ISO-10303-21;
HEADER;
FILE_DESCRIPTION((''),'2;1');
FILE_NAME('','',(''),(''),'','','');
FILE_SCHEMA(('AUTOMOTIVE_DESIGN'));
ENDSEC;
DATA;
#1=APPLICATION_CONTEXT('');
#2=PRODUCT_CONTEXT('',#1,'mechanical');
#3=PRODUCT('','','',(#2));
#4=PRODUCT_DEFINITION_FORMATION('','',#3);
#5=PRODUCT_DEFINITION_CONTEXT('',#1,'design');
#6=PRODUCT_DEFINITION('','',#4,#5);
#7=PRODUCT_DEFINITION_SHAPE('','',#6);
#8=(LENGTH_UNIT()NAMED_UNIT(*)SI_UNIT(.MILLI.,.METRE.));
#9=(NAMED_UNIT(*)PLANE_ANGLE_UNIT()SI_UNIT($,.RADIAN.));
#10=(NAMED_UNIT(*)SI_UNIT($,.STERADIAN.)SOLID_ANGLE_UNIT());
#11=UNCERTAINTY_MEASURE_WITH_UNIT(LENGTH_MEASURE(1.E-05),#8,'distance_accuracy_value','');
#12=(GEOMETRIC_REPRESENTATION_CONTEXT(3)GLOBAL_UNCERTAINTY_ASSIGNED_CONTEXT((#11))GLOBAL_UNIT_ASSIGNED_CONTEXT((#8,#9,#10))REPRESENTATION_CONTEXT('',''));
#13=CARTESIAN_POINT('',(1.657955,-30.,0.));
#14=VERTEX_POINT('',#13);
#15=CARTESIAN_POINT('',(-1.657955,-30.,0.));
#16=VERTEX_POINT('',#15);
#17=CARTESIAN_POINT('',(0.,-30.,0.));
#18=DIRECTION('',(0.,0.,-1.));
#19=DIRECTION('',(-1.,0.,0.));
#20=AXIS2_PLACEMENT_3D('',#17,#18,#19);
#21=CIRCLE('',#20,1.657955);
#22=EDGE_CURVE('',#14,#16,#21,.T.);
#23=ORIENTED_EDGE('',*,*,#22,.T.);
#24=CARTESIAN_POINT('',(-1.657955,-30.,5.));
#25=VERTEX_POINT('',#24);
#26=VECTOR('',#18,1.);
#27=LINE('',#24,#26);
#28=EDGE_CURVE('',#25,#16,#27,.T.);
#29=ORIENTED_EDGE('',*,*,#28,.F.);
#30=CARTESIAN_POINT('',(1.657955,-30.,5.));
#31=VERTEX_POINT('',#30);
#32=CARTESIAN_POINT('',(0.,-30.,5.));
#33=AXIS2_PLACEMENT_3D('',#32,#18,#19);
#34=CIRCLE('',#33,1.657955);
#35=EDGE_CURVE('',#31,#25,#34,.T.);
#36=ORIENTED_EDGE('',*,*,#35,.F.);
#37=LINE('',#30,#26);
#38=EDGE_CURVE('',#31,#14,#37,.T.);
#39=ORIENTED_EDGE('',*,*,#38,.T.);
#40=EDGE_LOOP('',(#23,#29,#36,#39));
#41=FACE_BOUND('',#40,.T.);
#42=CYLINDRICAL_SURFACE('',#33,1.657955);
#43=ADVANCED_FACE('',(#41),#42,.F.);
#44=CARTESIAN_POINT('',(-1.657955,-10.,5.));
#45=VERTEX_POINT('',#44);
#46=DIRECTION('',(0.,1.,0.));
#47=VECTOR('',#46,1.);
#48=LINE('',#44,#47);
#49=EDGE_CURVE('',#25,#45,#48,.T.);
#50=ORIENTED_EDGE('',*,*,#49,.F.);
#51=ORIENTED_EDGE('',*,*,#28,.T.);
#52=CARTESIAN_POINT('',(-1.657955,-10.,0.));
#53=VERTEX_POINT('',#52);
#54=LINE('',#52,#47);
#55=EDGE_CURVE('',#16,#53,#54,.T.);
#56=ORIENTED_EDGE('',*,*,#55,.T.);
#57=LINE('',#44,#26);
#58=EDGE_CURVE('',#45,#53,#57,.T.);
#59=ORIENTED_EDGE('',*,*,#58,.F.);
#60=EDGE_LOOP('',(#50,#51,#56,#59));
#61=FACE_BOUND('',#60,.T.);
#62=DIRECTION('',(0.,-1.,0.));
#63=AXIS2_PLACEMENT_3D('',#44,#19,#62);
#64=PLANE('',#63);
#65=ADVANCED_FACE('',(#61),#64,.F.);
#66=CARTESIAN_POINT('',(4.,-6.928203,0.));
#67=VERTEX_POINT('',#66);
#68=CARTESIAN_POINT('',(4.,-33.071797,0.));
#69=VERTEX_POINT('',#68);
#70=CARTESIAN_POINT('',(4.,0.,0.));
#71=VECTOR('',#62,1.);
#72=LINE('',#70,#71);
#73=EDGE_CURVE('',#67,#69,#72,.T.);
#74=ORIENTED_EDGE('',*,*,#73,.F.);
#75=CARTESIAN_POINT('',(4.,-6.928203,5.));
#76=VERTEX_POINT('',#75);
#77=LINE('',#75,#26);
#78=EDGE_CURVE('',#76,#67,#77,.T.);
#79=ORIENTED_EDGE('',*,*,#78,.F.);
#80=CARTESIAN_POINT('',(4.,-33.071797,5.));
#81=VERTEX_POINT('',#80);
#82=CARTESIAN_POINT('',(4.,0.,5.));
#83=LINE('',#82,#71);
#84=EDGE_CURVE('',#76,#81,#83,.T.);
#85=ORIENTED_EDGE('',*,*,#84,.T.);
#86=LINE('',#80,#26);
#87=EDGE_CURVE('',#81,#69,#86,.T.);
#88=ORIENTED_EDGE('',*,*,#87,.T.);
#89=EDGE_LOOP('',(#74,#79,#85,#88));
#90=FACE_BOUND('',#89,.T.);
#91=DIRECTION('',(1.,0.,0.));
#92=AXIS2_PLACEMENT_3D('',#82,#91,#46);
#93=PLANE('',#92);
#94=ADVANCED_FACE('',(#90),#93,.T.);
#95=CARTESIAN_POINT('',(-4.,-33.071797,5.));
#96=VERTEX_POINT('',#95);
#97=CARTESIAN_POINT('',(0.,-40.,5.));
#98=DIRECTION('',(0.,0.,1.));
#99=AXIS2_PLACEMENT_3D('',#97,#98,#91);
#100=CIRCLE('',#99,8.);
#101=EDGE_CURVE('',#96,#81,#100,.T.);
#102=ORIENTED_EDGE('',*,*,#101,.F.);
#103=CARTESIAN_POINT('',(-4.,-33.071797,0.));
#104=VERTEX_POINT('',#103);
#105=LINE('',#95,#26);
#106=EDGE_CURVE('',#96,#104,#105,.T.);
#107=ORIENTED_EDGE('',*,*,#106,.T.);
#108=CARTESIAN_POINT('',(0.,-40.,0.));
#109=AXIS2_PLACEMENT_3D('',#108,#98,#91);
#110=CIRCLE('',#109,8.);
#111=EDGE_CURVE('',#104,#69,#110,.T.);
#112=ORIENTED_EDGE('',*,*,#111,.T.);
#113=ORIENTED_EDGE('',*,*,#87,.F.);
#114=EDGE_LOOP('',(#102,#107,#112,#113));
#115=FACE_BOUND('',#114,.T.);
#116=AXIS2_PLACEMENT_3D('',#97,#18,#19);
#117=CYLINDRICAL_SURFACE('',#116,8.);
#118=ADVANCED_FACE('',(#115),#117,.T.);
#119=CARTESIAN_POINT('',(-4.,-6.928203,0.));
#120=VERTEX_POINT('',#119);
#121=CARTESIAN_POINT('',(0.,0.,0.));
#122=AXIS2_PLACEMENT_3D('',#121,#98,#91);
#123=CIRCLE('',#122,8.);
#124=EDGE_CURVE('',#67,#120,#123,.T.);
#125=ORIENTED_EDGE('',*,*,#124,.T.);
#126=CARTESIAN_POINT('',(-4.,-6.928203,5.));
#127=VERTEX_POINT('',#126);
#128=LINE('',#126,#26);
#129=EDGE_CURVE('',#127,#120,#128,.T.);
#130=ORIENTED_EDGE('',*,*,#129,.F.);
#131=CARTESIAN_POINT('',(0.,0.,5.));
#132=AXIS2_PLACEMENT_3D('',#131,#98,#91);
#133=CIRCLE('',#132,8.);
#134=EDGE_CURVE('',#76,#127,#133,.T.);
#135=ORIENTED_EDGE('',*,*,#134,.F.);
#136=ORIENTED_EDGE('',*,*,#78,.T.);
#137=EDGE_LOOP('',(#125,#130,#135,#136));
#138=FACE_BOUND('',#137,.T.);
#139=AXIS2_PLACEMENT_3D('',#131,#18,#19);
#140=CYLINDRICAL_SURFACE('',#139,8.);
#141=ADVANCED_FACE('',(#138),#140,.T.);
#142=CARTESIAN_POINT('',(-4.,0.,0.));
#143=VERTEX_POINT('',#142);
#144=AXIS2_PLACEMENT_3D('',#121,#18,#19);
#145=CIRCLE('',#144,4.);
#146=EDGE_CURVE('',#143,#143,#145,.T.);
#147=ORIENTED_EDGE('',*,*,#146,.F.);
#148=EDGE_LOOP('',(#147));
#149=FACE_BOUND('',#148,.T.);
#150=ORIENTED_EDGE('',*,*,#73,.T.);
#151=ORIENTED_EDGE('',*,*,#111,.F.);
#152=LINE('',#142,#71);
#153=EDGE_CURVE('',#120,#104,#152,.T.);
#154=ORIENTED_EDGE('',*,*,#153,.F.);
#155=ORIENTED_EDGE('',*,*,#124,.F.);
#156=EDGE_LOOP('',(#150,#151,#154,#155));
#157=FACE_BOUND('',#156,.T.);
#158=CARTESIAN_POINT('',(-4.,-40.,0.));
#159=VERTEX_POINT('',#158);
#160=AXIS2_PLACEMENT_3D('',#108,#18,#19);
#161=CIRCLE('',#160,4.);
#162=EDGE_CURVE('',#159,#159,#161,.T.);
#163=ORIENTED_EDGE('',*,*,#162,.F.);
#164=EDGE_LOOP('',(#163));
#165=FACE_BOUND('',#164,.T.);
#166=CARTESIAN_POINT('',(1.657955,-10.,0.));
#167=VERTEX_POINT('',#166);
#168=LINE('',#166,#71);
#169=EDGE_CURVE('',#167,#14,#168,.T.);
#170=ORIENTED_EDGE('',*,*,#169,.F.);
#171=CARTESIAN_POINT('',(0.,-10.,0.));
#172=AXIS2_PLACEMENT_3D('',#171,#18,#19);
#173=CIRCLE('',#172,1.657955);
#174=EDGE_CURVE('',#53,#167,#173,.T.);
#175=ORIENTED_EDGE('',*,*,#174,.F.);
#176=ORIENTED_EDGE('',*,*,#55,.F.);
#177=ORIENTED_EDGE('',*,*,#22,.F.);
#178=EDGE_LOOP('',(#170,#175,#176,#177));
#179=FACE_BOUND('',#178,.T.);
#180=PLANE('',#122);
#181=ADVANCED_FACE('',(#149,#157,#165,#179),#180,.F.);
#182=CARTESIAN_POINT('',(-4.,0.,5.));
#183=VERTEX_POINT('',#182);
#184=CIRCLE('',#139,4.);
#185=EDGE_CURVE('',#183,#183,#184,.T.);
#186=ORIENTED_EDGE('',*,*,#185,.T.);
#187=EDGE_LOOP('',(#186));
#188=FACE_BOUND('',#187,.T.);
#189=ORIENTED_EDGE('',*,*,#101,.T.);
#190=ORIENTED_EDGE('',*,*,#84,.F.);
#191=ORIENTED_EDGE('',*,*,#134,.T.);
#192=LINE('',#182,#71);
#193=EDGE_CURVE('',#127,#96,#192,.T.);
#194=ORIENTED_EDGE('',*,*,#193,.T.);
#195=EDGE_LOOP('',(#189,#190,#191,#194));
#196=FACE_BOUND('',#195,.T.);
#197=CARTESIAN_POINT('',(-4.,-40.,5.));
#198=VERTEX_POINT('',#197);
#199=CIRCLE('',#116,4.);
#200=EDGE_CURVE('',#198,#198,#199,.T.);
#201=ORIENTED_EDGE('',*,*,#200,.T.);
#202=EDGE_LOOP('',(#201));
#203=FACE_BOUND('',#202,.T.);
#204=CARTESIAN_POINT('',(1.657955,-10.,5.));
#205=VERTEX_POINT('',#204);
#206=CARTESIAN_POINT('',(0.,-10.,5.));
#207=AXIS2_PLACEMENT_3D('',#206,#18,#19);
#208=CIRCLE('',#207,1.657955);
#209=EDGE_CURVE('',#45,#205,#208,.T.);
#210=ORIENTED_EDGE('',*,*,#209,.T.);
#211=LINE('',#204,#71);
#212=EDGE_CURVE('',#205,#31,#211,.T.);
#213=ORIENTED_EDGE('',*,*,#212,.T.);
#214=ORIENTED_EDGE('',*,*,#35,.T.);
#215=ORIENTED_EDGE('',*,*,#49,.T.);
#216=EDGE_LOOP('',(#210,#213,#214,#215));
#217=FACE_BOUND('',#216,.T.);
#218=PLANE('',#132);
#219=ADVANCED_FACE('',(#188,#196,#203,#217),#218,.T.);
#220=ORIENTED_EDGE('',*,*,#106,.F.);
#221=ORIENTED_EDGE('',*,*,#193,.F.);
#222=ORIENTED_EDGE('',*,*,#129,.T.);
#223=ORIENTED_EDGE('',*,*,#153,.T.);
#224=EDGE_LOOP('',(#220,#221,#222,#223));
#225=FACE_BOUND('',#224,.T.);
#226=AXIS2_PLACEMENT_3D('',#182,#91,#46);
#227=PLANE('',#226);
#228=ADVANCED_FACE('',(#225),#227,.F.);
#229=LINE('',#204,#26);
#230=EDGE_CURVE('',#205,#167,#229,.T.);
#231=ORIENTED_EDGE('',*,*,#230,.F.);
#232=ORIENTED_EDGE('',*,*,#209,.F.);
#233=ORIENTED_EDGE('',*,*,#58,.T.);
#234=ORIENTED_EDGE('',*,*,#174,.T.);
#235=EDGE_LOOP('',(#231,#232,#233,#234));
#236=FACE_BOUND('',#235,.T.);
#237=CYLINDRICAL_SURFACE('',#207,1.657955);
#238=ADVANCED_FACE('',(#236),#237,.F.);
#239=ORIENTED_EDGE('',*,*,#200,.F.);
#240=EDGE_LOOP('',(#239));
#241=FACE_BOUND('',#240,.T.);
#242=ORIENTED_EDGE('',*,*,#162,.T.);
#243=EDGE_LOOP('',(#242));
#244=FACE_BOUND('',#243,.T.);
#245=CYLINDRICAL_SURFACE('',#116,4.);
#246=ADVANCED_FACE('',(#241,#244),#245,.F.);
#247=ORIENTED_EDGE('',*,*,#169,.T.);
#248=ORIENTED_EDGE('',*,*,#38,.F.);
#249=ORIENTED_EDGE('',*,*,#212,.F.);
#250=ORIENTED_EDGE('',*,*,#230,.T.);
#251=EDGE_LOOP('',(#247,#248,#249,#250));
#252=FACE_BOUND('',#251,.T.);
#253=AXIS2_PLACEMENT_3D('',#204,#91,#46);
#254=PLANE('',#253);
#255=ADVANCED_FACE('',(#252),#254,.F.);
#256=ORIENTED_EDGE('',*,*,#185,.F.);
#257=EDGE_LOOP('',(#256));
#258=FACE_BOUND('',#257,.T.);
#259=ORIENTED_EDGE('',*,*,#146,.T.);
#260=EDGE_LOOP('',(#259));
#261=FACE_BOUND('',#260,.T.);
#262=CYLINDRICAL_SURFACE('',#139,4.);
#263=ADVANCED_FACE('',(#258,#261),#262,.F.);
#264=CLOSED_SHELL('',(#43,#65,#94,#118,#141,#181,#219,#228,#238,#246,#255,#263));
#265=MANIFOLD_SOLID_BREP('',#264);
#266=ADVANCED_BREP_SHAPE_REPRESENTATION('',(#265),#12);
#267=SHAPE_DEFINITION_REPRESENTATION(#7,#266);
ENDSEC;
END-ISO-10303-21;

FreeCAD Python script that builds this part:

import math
import FreeCAD as App
import Part
import Sketcher
from FreeCAD import Vector
Q = App.Units.Quantity

doc = App.newDocument("Part")
params = doc.addObject("Spreadsheet::Sheet", "Params")
for row, (alias, value) in enumerate([
    ("sketch1_radius", "8 mm"),
    ("pad1_length", "5 mm"),
    ("sketch2_diameter", "8 mm"),
    ("sketch3_height", "20 mm"),
], start=1):
    params.set(f"A{row}", alias)
    params.set(f"B{row}", "=" + value)
    params.setAlias(f"B{row}", alias)

body = doc.addObject("PartDesign::Body", "Body")

# Sketch on XY plane
sketch1 = doc.addObject("Sketcher::SketchObject", "Sketch")
body.addObject(sketch1)
sketch1.AttachmentSupport = (doc.XY_Plane, [""])
sketch1.MapMode = "FlatFace"
sketch1.addGeometry(Part.LineSegment(Vector(-4, -7, 0), Vector(-4, -33, 0)), False)
sketch1.addGeometry(Part.ArcOfCircle(Part.Circle(Vector(0, -40, 0), Vector(0, 0, 1), 8), math.radians(120), math.radians(360)), False)
sketch1.addGeometry(Part.ArcOfCircle(Part.Circle(Vector(0, -40, 0), Vector(0, 0, 1), 8), math.radians(0), math.radians(60)), False)
sketch1.addGeometry(Part.LineSegment(Vector(4, -33, 0), Vector(4, -7, 0)), False)
sketch1.addGeometry(Part.ArcOfCircle(Part.Circle(Vector(0, 0, 0), Vector(0, 0, 1), 8), math.radians(-60), math.radians(0)), False)
sketch1.addGeometry(Part.ArcOfCircle(Part.Circle(Vector(0, 0, 0), Vector(0, 0, 1), 8), math.radians(0), math.radians(240)), False)
sketch1.addConstraint(Sketcher.Constraint("Coincident", 0, 2, 1, 1))
sketch1.addConstraint(Sketcher.Constraint("Tangent", 1, 2, 2, 1))
sketch1.addConstraint(Sketcher.Constraint("Coincident", 2, 2, 3, 1))
sketch1.addConstraint(Sketcher.Constraint("Coincident", 3, 2, 4, 1))
sketch1.addConstraint(Sketcher.Constraint("Tangent", 4, 2, 5, 1))
sketch1.addConstraint(Sketcher.Constraint("Coincident", 5, 2, 0, 1))
sketch1.addConstraint(Sketcher.Constraint("Vertical", 0))
sketch1.addConstraint(Sketcher.Constraint("Vertical", 3))
sketch1.addConstraint(Sketcher.Constraint("Coincident", 4, 3, -1, 1))
sketch1.addConstraint(Sketcher.Constraint("Equal", 1, 2))
sketch1.addConstraint(Sketcher.Constraint("Equal", 2, 4))
sketch1.addConstraint(Sketcher.Constraint("Equal", 4, 5))
sketch1.addConstraint(Sketcher.Constraint("Symmetric", 0, 2, 2, 2, -2))
sketch1.addConstraint(Sketcher.Constraint("PointOnObject", 4, 2, -1))
sketch1.addConstraint(Sketcher.Constraint("Horizontal", 2, 3, 1, 2))
sketch1.addConstraint(Sketcher.Constraint("Radius", 1, Q("8 mm")))
sketch1.addConstraint(Sketcher.Constraint("DistanceY", 1, 3, -1, 1, Q("40 mm")))
sketch1.addConstraint(Sketcher.Constraint("DistanceX", 0, 2, -1, 1, Q("4 mm")))
sketch1.setExpression("Constraints[15]", "Params.sketch1_radius")
pad1 = doc.addObject("PartDesign::Pad", "Pad")
body.addObject(pad1)
pad1.Profile = sketch1
pad1.setExpression("Length", "Params.pad1_length")

# Sketch on XY plane
sketch2 = doc.addObject("Sketcher::SketchObject", "Sketch001")
body.addObject(sketch2)
sketch2.AttachmentSupport = (doc.XY_Plane, [""])
sketch2.MapMode = "FlatFace"
sketch2.addGeometry(Part.Circle(Vector(0, 0, 0), Vector(0, 0, 1), 4), False)
sketch2.addGeometry(Part.Circle(Vector(0, -40, 0), Vector(0, 0, 1), 4), False)
sketch2.addConstraint(Sketcher.Constraint("Coincident", 0, 3, -1, 1))
sketch2.addConstraint(Sketcher.Constraint("Equal", 0, 1))
sketch2.addConstraint(Sketcher.Constraint("PointOnObject", 1, 3, -2))
sketch2.addConstraint(Sketcher.Constraint("Diameter", 0, Q("8 mm")))
sketch2.addConstraint(Sketcher.Constraint("DistanceY", 1, 3, -1, 1, Q("40 mm")))
sketch2.setExpression("Constraints[3]", "Params.sketch2_diameter")
pocket1 = doc.addObject("PartDesign::Pocket", "Pocket")
body.addObject(pocket1)
pocket1.Profile = sketch2
pocket1.Type = "ThroughAll"
pocket1.Reversed = True

# Sketch on XY plane
sketch3 = doc.addObject("Sketcher::SketchObject", "Sketch002")
body.addObject(sketch3)
sketch3.AttachmentSupport = (doc.XY_Plane, [""])
sketch3.MapMode = "FlatFace"
sketch3.addGeometry(Part.LineSegment(Vector(-1.7, -30, 0), Vector(-1.7, -10, 0)), False)
sketch3.addGeometry(Part.ArcOfCircle(Part.Circle(Vector(0, -10, 0), Vector(0, 0, 1), 1.7), math.radians(0), math.radians(180)), False)
sketch3.addGeometry(Part.LineSegment(Vector(1.7, -10, 0), Vector(1.7, -30, 0)), False)
sketch3.addGeometry(Part.ArcOfCircle(Part.Circle(Vector(0, -30, 0), Vector(0, 0, 1), 1.7), math.radians(180), math.radians(360)), False)
sketch3.addConstraint(Sketcher.Constraint("Tangent", 0, 2, 1, 2))
sketch3.addConstraint(Sketcher.Constraint("Tangent", 1, 1, 2, 1))
sketch3.addConstraint(Sketcher.Constraint("Tangent", 2, 2, 3, 2))
sketch3.addConstraint(Sketcher.Constraint("Tangent", 3, 1, 0, 1))
sketch3.addConstraint(Sketcher.Constraint("Vertical", 0))
sketch3.addConstraint(Sketcher.Constraint("Vertical", 2))
sketch3.addConstraint(Sketcher.Constraint("PointOnObject", 1, 3, -2))
sketch3.addConstraint(Sketcher.Constraint("DistanceY", 0, 1, 0, 2, Q("20 mm")))
sketch3.addConstraint(Sketcher.Constraint("DistanceY", 1, 3, -1, 1, Q("10 mm")))
sketch3.addConstraint(Sketcher.Constraint("Radius", 1, Q("1.657955 mm")))
sketch3.setExpression("Constraints[7]", "Params.sketch3_height")
pocket2 = doc.addObject("PartDesign::Pocket", "Pocket001")
body.addObject(pocket2)
pocket2.Profile = sketch3
pocket2.Type = "ThroughAll"
pocket2.Reversed = True

doc.recompute()
